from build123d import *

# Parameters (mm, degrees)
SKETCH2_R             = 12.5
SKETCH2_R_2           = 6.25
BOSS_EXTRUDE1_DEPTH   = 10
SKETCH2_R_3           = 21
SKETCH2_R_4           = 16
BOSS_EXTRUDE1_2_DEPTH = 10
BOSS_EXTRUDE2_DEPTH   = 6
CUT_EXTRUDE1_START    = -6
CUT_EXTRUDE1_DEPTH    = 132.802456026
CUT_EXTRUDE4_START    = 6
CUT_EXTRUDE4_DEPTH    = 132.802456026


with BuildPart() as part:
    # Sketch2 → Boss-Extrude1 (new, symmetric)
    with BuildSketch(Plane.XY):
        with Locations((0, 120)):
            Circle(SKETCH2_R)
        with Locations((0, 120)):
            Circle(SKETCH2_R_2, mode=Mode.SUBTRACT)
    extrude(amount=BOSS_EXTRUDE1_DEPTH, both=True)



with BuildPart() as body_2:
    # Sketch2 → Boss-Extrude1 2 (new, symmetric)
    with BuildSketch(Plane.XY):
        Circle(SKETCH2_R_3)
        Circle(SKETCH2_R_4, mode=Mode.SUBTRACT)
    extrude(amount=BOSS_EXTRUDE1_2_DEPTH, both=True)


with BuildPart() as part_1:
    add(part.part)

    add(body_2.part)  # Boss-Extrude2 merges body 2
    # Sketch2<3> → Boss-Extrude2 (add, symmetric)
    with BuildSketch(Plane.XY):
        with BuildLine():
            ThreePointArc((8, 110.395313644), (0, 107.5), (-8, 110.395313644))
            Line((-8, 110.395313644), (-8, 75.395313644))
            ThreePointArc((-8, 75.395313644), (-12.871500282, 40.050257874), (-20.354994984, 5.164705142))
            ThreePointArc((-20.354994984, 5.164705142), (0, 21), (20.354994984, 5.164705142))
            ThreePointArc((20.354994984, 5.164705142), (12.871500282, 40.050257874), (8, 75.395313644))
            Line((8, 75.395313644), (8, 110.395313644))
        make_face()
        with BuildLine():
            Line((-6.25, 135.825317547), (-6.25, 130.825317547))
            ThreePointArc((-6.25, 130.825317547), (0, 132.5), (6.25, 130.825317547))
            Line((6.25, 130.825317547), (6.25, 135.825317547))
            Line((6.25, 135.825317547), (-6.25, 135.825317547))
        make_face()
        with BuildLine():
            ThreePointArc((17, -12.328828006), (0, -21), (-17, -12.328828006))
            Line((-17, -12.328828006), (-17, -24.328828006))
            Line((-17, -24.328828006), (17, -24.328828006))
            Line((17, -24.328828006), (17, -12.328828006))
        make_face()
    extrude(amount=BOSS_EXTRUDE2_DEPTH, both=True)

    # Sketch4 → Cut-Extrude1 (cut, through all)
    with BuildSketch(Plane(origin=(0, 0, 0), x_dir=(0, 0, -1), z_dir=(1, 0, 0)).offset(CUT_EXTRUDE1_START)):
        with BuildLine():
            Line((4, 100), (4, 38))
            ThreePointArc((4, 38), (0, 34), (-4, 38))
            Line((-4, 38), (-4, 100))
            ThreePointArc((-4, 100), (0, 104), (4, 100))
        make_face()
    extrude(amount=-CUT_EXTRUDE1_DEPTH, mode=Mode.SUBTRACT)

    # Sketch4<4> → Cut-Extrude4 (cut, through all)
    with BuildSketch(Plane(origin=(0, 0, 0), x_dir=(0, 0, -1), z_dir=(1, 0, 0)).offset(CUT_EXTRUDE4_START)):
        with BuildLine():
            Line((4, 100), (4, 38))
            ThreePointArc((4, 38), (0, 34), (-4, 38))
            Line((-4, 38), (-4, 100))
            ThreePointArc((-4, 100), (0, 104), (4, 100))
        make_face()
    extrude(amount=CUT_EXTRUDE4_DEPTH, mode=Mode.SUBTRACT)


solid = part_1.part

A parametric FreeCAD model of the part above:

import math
import FreeCAD as App
import Part
import Sketcher
from FreeCAD import Vector
Q = App.Units.Quantity

doc = App.newDocument("Part")
params = doc.addObject("Spreadsheet::Sheet", "Params")
for row, (alias, value) in enumerate([
    ("sketch1_diameter", "25 mm"),
    ("sketch1_diameter2", "12.5 mm"),
    ("pad1_length", "20 mm"),
    ("sketch2_diameter", "42 mm"),
    ("sketch2_diameter2", "32 mm"),
    ("pad2_length", "20 mm"),
    ("sketch3_radius", "21 mm"),
    ("sketch3_radius2", "12.5 mm"),
    ("sketch3_width", "34 mm"),
    ("sketch3_height", "35 mm"),
    ("sketch3_height2", "5 mm"),
    ("pad3_length", "12 mm"),
    ("sketch4_radius", "4 mm"),
    ("sketch4_width", "62 mm"),
    ("sketch5_radius", "4 mm"),
    ("sketch5_width", "62 mm"),
], start=1):
    params.set(f"A{row}", alias)
    params.set(f"B{row}", "=" + value)
    params.setAlias(f"B{row}", alias)

body = doc.addObject("PartDesign::Body", "Body")

# Sketch on XY plane
sketch1 = body.newObject("Sketcher::SketchObject", "Sketch")
sketch1.AttachmentSupport = (doc.getObject("XY_Plane"), [""])
sketch1.MapMode = "FlatFace"
sketch1.addGeometry(Part.Circle(Vector(0, 120, 0), Vector(0, 0, 1), 12), False)
sketch1.addGeometry(Part.Circle(Vector(0, 120, 0), Vector(0, 0, 1), 6), False)
sketch1.addConstraint(Sketcher.Constraint("Coincident", 1, 3, 0, 3))
sketch1.addConstraint(Sketcher.Constraint("PointOnObject", 0, 3, -2))
sketch1.addConstraint(Sketcher.Constraint("Diameter", 0, Q("25 mm")))
sketch1.addConstraint(Sketcher.Constraint("Diameter", 1, Q("12.5 mm")))
sketch1.addConstraint(Sketcher.Constraint("DistanceY", -1, 1, 0, 3, Q("120 mm")))
sketch1.setExpression("Constraints[2]", "Params.sketch1_diameter")
sketch1.setExpression("Constraints[3]", "Params.sketch1_diameter2")
pad1 = body.newObject("PartDesign::Pad", "Pad")
pad1.Profile = sketch1
pad1.setExpression("Length", "Params.pad1_length")
pad1.Midplane = True
body2 = doc.addObject("PartDesign::Body", "Body001")

# Sketch on XY plane
sketch2 = body2.newObject("Sketcher::SketchObject", "Sketch001")
sketch2.AttachmentSupport = (doc.getObject("XY_Plane001"), [""])
sketch2.MapMode = "FlatFace"
sketch2.addGeometry(Part.Circle(Vector(0, 0, 0), Vector(0, 0, 1), 21), False)
sketch2.addGeometry(Part.Circle(Vector(0, 0, 0), Vector(0, 0, 1), 16), False)
sketch2.addConstraint(Sketcher.Constraint("Coincident", 0, 3, -1, 1))
sketch2.addConstraint(Sketcher.Constraint("Coincident", 1, 3, -1, 1))
sketch2.addConstraint(Sketcher.Constraint("Diameter", 0, Q("42 mm")))
sketch2.addConstraint(Sketcher.Constraint("Diameter", 1, Q("32 mm")))
sketch2.setExpression("Constraints[2]", "Params.sketch2_diameter")
sketch2.setExpression("Constraints[3]", "Params.sketch2_diameter2")
pad2 = body2.newObject("PartDesign::Pad", "Pad001")
pad2.Profile = sketch2
pad2.setExpression("Length", "Params.pad2_length")
pad2.Midplane = True
body.AllowCompound = True
doc.recompute()

boolean = body.newObject("PartDesign::Boolean", "Boolean")
boolean.Type = "Fuse"
boolean.addObjects([body2])

# Sketch on XY plane
sketch3 = body.newObject("Sketcher::SketchObject", "Sketch002")
sketch3.AttachmentSupport = (doc.getObject("XY_Plane"), [""])
sketch3.MapMode = "FlatFace"
sketch3.addGeometry(Part.ArcOfCircle(Part.Circle(Vector(0, 120, 0), Vector(0, 0, 1), 12), math.radians(-130), math.radians(-50)), False)
sketch3.addGeometry(Part.LineSegment(Vector(-8, 110, 0), Vector(-8, 75, 0)), False)
sketch3.addGeometry(Part.ArcOfCircle(Part.Circle(Vector(-486, 123, 0), Vector(0, 0, 1), 480), math.radians(-14.24), math.radians(-5.72)), False)
sketch3.addGeometry(Part.ArcOfCircle(Part.Circle(Vector(0, 0, 0), Vector(0, 0, 1), 21), math.radians(14), math.radians(166)), False)
sketch3.addGeometry(Part.ArcOfCircle(Part.Circle(Vector(486, 123, 0), Vector(0, 0, 1), 480), math.radians(-174.28), math.radians(-165.76)), False)
sketch3.addGeometry(Part.LineSegment(Vector(8, 75, 0), Vector(8, 110, 0)), False)
sketch3.addGeometry(Part.LineSegment(Vector(-6, 136, 0), Vector(-6, 131, 0)), False)
sketch3.addGeometry(Part.ArcOfCircle(Part.Circle(Vector(0, 120, 0), Vector(0, 0, 1), 12), math.radians(60), math.radians(120)), False)
sketch3.addGeometry(Part.LineSegment(Vector(6, 131, 0), Vector(6, 136, 0)), False)
sketch3.addGeometry(Part.LineSegment(Vector(6, 136, 0), Vector(-6, 136, 0)), False)
sketch3.addGeometry(Part.ArcOfCircle(Part.Circle(Vector(0, 0, 0), Vector(0, 0, 1), 21), math.radians(-144), math.radians(-36)), False)
sketch3.addGeometry(Part.LineSegment(Vector(-17, -12, 0), Vector(-17, -24, 0)), False)
sketch3.addGeometry(Part.LineSegment(Vector(-17, -24, 0), Vector(17, -24, 0)), False)
sketch3.addGeometry(Part.LineSegment(Vector(17, -24, 0), Vector(17, -12, 0)), False)
sketch3.addConstraint(Sketcher.Constraint("Coincident", 0, 1, 1, 1))
sketch3.addConstraint(Sketcher.Constraint("Coincident", 1, 2, 2, 2))
sketch3.addConstraint(Sketcher.Constraint("Tangent", 2, 1, 3, 2))
sketch3.addConstraint(Sketcher.Constraint("Tangent", 3, 1, 4, 2))
sketch3.addConstraint(Sketcher.Constraint("Coincident", 4, 1, 5, 1))
sketch3.addConstraint(Sketcher.Constraint("Coincident", 5, 2, 0, 2))
sketch3.addConstraint(Sketcher.Constraint("Coincident", 6, 2, 7, 2))
sketch3.addConstraint(Sketcher.Constraint("Coincident", 7, 1, 8, 1))
sketch3.addConstraint(Sketcher.Constraint("Coincident", 8, 2, 9, 1))
sketch3.addConstraint(Sketcher.Constraint("Coincident", 9, 2, 6, 1))
sketch3.addConstraint(Sketcher.Constraint("Coincident", 10, 1, 11, 1))
sketch3.addConstraint(Sketcher.Constraint("Coincident", 11, 2, 12, 1))
sketch3.addConstraint(Sketcher.Constraint("Coincident", 12, 2, 13, 1))
sketch3.addConstraint(Sketcher.Constraint("Coincident", 13, 2, 10, 2))
sketch3.addConstraint(Sketcher.Constraint("Vertical", 1))
sketch3.addConstraint(Sketcher.Constraint("Vertical", 5))
sketch3.addConstraint(Sketcher.Constraint("Vertical", 6))
sketch3.addConstraint(Sketcher.Constraint("Vertical", 8))
sketch3.addConstraint(Sketcher.Constraint("Horizontal", 9))
sketch3.addConstraint(Sketcher.Constraint("Vertical", 11))
sketch3.addConstraint(Sketcher.Constraint("Horizontal", 12))
sketch3.addConstraint(Sketcher.Constraint("Vertical", 13))
sketch3.addConstraint(Sketcher.Constraint("Coincident", 3, 3, -1, 1))
sketch3.addConstraint(Sketcher.Constraint("Coincident", 10, 3, -1, 1))
sketch3.addConstraint(Sketcher.Constraint("Coincident", 7, 3, 0, 3))
sketch3.addConstraint(Sketcher.Constraint("Equal", 2, 4))
sketch3.addConstraint(Sketcher.Constraint("Equal", 0, 7))
sketch3.addConstraint(Sketcher.Constraint("Equal", 3, 10))
sketch3.addConstraint(Sketcher.Constraint("Symmetric", 1, 2, 4, 1, -2))
sketch3.addConstraint(Sketcher.Constraint("Symmetric", 6, 2, 7, 1, -2))
sketch3.addConstraint(Sketcher.Constraint("Horizontal", 10, 1, 13, 2))
sketch3.addConstraint(Sketcher.Constraint("Radius", 3, Q("21 mm")))
sketch3.addConstraint(Sketcher.Constraint("Radius", 0, Q("12.5 mm")))
sketch3.addConstraint(Sketcher.Constraint("DistanceX", 12, 1, 12, 2, Q("34 mm")))
sketch3.addConstraint(Sketcher.Constraint("DistanceY", 1, 2, 1, 1, Q("35 mm")))
sketch3.addConstraint(Sketcher.Constraint("DistanceY", 6, 2, 6, 1, Q("5 mm")))
sketch3.addConstraint(Sketcher.Constraint("DistanceY", 11, 2, 11, 1, Q("12 mm")))
sketch3.addConstraint(Sketcher.Constraint("DistanceX", 9, 2, 9, 1, Q("12.5 mm")))
sketch3.addConstraint(Sketcher.Constraint("DistanceY", -1, 1, 0, 3, Q("120 mm")))
sketch3.addConstraint(Sketcher.Constraint("DistanceX", 0, 1, -1, 1, Q("8 mm")))
sketch3.addConstraint(Sketcher.Constraint("Radius", 2, Q("479.997872 mm")))
sketch3.setExpression("Constraints[31]", "Params.sketch3_radius")
sketch3.setExpression("Constraints[32]", "Params.sketch3_radius2")
sketch3.setExpression("Constraints[33]", "Params.sketch3_width")
sketch3.setExpression("Constraints[34]", "Params.sketch3_height")
sketch3.setExpression("Constraints[35]", "Params.sketch3_height2")
pad3 = body.newObject("PartDesign::Pad", "Pad002")
pad3.Profile = sketch3
pad3.setExpression("Length", "Params.pad3_length")
pad3.Midplane = True

# Sketch on YZ plane
sketch4 = body.newObject("Sketcher::SketchObject", "Sketch003")
sketch4.AttachmentSupport = (doc.getObject("YZ_Plane"), [""])
sketch4.MapMode = "FlatFace"
sketch4.AttachmentOffset = App.Placement(Vector(0, 0, -6), App.Rotation())
sketch4.addGeometry(Part.LineSegment(Vector(38, -4, 0), Vector(100, -4, 0)), False)
sketch4.addGeometry(Part.ArcOfCircle(Part.Circle(Vector(100, 0, 0), Vector(0, 0, 1), 4), math.radians(-90), math.radians(90)), False)
sketch4.addGeometry(Part.LineSegment(Vector(100, 4, 0), Vector(38, 4, 0)), False)
sketch4.addGeometry(Part.ArcOfCircle(Part.Circle(Vector(38, 0, 0), Vector(0, 0, 1), 4), math.radians(90), math.radians(270)), False)
sketch4.addConstraint(Sketcher.Constraint("Tangent", 0, 2, 1, 1))
sketch4.addConstraint(Sketcher.Constraint("Tangent", 1, 2, 2, 1))
sketch4.addConstraint(Sketcher.Constraint("Tangent", 2, 2, 3, 1))
sketch4.addConstraint(Sketcher.Constraint("Tangent", 3, 2, 0, 1))
sketch4.addConstraint(Sketcher.Constraint("Horizontal", 0))
sketch4.addConstraint(Sketcher.Constraint("Horizontal", 2))
sketch4.addConstraint(Sketcher.Constraint("PointOnObject", 1, 3, -1))
sketch4.addConstraint(Sketcher.Constraint("Radius", 1, Q("4 mm")))
sketch4.addConstraint(Sketcher.Constraint("DistanceX", 0, 1, 0, 2, Q("62 mm")))
sketch4.addConstraint(Sketcher.Constraint("DistanceX", -1, 1, 1, 3, Q("100 mm")))
sketch4.setExpression("Constraints[7]", "Params.sketch4_radius")
sketch4.setExpression("Constraints[8]", "Params.sketch4_width")
pocket1 = body.newObject("PartDesign::Pocket", "Pocket")
pocket1.Profile = sketch4
pocket1.Type = "ThroughAll"

# Sketch on YZ plane
sketch5 = body.newObject("Sketcher::SketchObject", "Sketch004")
sketch5.AttachmentSupport = (doc.getObject("YZ_Plane"), [""])
sketch5.MapMode = "FlatFace"
sketch5.AttachmentOffset = App.Placement(Vector(0, 0, 6), App.Rotation())
sketch5.addGeometry(Part.LineSegment(Vector(38, -4, 0), Vector(100, -4, 0)), False)
sketch5.addGeometry(Part.ArcOfCircle(Part.Circle(Vector(100, 0, 0), Vector(0, 0, 1), 4), math.radians(-90), math.radians(90)), False)
sketch5.addGeometry(Part.LineSegment(Vector(100, 4, 0), Vector(38, 4, 0)), False)
sketch5.addGeometry(Part.ArcOfCircle(Part.Circle(Vector(38, 0, 0), Vector(0, 0, 1), 4), math.radians(90), math.radians(270)), False)
sketch5.addConstraint(Sketcher.Constraint("Tangent", 0, 2, 1, 1))
sketch5.addConstraint(Sketcher.Constraint("Tangent", 1, 2, 2, 1))
sketch5.addConstraint(Sketcher.Constraint("Tangent", 2, 2, 3, 1))
sketch5.addConstraint(Sketcher.Constraint("Tangent", 3, 2, 0, 1))
sketch5.addConstraint(Sketcher.Constraint("Horizontal", 0))
sketch5.addConstraint(Sketcher.Constraint("Horizontal", 2))
sketch5.addConstraint(Sketcher.Constraint("PointOnObject", 1, 3, -1))
sketch5.addConstraint(Sketcher.Constraint("Radius", 1, Q("4 mm")))
sketch5.addConstraint(Sketcher.Constraint("DistanceX", 0, 1, 0, 2, Q("62 mm")))
sketch5.addConstraint(Sketcher.Constraint("DistanceX", -1, 1, 1, 3, Q("100 mm")))
sketch5.setExpression("Constraints[7]", "Params.sketch5_radius")
sketch5.setExpression("Constraints[8]", "Params.sketch5_width")
pocket2 = body.newObject("PartDesign::Pocket", "Pocket001")
pocket2.Profile = sketch5
pocket2.Type = "ThroughAll"
pocket2.Reversed = True

doc.recompute()
